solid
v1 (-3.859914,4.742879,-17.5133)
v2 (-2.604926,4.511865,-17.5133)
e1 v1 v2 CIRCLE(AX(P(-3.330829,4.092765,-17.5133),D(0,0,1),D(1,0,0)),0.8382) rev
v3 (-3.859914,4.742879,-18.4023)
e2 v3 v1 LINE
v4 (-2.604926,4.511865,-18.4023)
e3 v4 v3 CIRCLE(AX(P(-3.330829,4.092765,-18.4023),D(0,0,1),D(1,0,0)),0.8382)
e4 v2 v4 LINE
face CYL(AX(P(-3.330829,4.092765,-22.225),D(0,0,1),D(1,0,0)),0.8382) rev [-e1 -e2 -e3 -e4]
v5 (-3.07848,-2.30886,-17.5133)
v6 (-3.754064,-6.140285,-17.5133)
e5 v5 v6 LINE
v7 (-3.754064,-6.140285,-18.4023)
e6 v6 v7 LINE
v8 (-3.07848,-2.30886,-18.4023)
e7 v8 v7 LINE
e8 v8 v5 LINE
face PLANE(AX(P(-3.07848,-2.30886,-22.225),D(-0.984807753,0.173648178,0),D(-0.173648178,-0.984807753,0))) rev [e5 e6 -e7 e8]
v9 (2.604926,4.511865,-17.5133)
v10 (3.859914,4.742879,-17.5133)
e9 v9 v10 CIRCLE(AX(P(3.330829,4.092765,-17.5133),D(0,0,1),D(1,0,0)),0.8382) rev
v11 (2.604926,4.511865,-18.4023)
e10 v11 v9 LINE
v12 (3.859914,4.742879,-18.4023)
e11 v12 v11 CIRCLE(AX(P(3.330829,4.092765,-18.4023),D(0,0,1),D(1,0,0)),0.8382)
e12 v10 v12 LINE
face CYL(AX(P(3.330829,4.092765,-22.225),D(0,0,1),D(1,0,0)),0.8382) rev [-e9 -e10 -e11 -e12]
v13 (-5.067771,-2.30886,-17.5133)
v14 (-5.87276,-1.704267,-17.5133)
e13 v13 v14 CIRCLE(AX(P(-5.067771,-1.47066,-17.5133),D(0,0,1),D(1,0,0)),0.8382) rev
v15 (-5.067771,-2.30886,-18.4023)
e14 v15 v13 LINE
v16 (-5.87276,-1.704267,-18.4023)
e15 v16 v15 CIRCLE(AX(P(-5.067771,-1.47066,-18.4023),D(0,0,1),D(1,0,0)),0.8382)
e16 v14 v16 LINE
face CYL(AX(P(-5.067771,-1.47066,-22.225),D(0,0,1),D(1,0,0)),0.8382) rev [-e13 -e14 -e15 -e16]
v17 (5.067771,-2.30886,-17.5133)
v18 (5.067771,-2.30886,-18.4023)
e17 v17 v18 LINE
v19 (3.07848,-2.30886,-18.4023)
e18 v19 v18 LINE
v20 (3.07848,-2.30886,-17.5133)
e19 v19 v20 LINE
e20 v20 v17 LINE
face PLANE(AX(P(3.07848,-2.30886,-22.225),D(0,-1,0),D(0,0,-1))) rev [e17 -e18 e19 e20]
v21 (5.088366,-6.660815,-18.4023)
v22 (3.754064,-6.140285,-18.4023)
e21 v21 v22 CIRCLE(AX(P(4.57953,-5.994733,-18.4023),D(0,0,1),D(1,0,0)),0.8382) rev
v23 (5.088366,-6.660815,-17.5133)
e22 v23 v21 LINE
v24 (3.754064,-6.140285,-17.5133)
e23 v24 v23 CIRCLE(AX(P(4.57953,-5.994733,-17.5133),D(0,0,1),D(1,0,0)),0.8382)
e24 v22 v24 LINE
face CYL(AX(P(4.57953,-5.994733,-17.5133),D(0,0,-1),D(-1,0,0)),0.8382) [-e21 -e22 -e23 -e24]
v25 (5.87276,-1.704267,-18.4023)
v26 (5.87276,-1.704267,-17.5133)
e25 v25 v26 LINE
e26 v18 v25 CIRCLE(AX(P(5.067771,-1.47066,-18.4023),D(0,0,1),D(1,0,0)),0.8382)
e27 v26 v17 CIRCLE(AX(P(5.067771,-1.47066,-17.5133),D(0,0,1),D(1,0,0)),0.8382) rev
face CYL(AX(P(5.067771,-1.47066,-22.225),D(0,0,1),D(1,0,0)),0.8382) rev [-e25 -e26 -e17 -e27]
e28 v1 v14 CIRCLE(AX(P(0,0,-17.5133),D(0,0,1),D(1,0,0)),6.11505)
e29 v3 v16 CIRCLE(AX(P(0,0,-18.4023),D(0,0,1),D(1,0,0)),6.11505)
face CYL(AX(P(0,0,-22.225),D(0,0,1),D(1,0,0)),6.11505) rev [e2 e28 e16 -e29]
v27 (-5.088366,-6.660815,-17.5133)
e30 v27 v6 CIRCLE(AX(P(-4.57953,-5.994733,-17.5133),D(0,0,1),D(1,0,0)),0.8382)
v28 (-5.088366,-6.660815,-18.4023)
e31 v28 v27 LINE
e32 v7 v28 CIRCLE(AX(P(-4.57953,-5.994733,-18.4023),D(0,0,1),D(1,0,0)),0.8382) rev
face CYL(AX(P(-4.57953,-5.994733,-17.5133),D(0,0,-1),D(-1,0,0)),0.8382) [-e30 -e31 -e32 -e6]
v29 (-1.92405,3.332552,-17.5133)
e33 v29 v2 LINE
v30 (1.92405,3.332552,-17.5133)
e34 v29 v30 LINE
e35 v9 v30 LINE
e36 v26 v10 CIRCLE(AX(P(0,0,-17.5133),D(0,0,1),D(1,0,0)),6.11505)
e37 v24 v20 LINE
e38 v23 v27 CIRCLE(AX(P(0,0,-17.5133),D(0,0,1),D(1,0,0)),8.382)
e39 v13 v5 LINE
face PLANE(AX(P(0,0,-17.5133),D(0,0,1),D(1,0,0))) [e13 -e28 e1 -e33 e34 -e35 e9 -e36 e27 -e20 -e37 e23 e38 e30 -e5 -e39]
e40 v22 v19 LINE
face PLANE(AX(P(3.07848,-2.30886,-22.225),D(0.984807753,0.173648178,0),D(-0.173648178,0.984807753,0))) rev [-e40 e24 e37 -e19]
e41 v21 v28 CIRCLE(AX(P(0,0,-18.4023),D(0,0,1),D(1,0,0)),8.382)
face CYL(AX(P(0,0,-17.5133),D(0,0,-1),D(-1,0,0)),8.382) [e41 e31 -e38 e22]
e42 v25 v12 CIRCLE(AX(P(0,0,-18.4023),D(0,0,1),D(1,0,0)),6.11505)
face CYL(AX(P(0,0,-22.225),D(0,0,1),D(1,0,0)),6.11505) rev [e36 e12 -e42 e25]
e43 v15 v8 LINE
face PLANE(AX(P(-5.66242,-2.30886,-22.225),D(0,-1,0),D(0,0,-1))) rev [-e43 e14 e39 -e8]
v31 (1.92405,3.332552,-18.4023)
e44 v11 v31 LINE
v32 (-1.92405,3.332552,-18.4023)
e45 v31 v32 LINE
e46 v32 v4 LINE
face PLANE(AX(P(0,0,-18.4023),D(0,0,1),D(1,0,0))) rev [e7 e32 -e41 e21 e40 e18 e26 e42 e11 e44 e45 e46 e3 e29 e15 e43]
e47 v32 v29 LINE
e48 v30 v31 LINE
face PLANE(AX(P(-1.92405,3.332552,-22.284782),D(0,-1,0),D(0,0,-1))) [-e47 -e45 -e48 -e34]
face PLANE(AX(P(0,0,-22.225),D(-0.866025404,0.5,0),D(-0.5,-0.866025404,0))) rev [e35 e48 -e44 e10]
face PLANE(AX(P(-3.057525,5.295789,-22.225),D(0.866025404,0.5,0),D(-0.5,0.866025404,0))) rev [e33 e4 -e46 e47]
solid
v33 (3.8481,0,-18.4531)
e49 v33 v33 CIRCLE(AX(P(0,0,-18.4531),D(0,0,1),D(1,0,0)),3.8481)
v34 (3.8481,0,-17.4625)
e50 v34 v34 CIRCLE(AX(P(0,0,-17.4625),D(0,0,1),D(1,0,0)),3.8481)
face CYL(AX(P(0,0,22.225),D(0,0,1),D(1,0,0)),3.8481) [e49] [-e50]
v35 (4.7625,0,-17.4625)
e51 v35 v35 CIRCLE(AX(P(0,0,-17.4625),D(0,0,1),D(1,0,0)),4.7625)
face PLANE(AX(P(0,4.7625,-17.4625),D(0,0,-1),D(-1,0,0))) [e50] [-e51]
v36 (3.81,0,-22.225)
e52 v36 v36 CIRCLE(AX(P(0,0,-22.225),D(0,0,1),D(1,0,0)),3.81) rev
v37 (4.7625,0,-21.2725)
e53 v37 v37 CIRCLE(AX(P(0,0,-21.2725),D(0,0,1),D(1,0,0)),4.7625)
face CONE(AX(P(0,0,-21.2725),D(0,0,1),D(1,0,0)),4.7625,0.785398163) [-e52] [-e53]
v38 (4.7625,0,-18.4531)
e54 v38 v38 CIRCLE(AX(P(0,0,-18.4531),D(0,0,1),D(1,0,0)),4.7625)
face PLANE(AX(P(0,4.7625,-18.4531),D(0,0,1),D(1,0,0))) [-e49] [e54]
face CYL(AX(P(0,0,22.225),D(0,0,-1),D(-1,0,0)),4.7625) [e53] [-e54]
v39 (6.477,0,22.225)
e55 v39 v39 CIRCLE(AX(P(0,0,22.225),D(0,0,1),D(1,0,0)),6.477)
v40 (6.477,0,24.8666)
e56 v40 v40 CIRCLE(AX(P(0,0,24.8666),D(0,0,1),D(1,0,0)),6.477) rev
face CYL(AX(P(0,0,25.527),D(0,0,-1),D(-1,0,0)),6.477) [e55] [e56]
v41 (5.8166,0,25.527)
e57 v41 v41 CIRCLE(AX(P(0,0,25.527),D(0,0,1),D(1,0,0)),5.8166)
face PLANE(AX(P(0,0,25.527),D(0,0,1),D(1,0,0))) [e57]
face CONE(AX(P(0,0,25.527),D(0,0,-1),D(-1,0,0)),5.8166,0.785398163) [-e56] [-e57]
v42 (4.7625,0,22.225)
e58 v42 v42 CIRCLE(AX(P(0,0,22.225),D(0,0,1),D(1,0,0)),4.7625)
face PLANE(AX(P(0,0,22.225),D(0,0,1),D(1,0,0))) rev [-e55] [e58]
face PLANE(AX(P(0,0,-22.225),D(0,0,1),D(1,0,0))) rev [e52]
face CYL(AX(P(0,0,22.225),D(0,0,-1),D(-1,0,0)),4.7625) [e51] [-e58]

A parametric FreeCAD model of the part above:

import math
import FreeCAD as App
import Part
import Sketcher

V = App.Vector
Q = App.Units.Quantity


def edges_at(feature, points):
    """Names of the edges that pass closest to the given points."""
    edges = feature.Shape.Edges
    near = lambda p: min(range(len(edges)), key=lambda i: edges[i].distToShape(Part.Vertex(*p))[0])
    return sorted({f"Edge{near(p) + 1}" for p in points})


def add_polygon(sketch, points):
    """Adds a closed chain of lines whose ends are joined by coincident constraints."""
    first, n = sketch.GeometryCount, len(points)
    for a, b in zip(points, points[1:] + points[:1]):
        sketch.addGeometry(Part.LineSegment(App.Vector(*a, 0), App.Vector(*b, 0)), False)
    for i in range(n):
        sketch.addConstraint(Sketcher.Constraint("Coincident", first + i, 2, first + (i + 1) % n, 1))

doc = App.newDocument("Part")
body = doc.addObject("PartDesign::Body", "Body")

sketch1 = body.newObject("Sketcher::SketchObject", "Sketch")
sketch1.AttachmentSupport = (doc.getObject("XY_Plane"), [""])
sketch1.MapMode = "FlatFace"
sketch1.addGeometry(Part.Circle(V(0, 0, 0), V(0, 0, 1), 4.7625), False)
sketch1.addConstraint([
    Sketcher.Constraint("Coincident", 0, 3, -1, 1),
    Sketcher.Constraint("Diameter", 0, Q("0.375 in")),
])
pad1 = body.newObject("PartDesign::Pad", "Pad")
pad1.Profile = sketch1
pad1.Length = Q("1.75 in")
pad1.Midplane = True

sketch2 = body.newObject("Sketcher::SketchObject", "Sketch001")
sketch2.AttachmentSupport = (doc.getObject("YZ_Plane"), [""])
sketch2.MapMode = "FlatFace"
add_polygon(sketch2, [(4.7625, -17.4625), (3.8481, -17.4625), (3.8481, -18.4531), (4.7625, -18.4531)])
sketch2.addConstraint([
    Sketcher.Constraint("Horizontal", 0),
    Sketcher.Constraint("Vertical", 1),
    Sketcher.Constraint("Horizontal", 2),
    Sketcher.Constraint("Vertical", 3),
    Sketcher.Constraint("DistanceX", 0, 2, 0, 1, Q("0.036 in")),
    Sketcher.Constraint("DistanceY", 1, 2, 1, 1, Q("0.039 in")),
    Sketcher.Constraint("DistanceY", 0, 2, -1, 1, Q("0.6875 in")),
    Sketcher.Constraint("DistanceX", -1, 1, 2, 2, Q("0.1875 in")),
])
groove = body.newObject("PartDesign::Groove", "Groove")
groove.Profile = sketch2
groove.ReferenceAxis = (sketch2, ["V_Axis"])
groove.Angle = 360

sketch3 = body.newObject("Sketcher::SketchObject", "Sketch002")
sketch3.AttachmentSupport = (doc.getObject("XY_Plane"), [""])
sketch3.MapMode = "FlatFace"
sketch3.AttachmentOffset = App.Placement(V(0, 0, 0.875 * 25.4), App.Rotation())
sketch3.addGeometry(Part.Circle(V(0, 0, 0), V(0, 0, 1), 6.477), False)
sketch3.addConstraint([
    Sketcher.Constraint("Coincident", 0, 3, -1, 1),
    Sketcher.Constraint("Diameter", 0, Q("0.51 in")),
])
pad2 = body.newObject("PartDesign::Pad", "Pad001")
pad2.Profile = sketch3
pad2.Length = Q("0.13 in")
doc.recompute()

chamfer = body.newObject("PartDesign::Chamfer", "Chamfer")
chamfer.Base = (pad2, edges_at(pad2, [(-6.477, 0, 25.527)]))
chamfer.Size = Q("0.026 in")
doc.recompute()

chamfer2 = body.newObject("PartDesign::Chamfer", "Chamfer001")
chamfer2.Base = (chamfer, edges_at(chamfer, [(-4.763, 0, -22.225)]))
chamfer2.Size = Q("0.0375 in")
body2 = doc.addObject("PartDesign::Body", "Body001")

sketch4 = body2.newObject("Sketcher::SketchObject", "Sketch003")
sketch4.AttachmentSupport = (doc.getObject("XY_Plane001"), [""])
sketch4.MapMode = "FlatFace"
sketch4.AttachmentOffset = App.Placement(V(0, 0, -0.707 * 25.4), App.Rotation())
sketch4.addGeometry([
    Part.Circle(V(0, 0, 0), V(0, 0, 1), 8.382),
    Part.Circle(V(0, 0, 0), V(0, 0, 1), 3.8481),
], False)
sketch4.addConstraint([
    Sketcher.Constraint("Coincident", 0, 3, -1, 1),
    Sketcher.Constraint("Coincident", 1, 3, -1, 1),
    Sketcher.Constraint("Diameter", 0, Q("0.66 in")),
    Sketcher.Constraint("Diameter", 1, Q("0.303 in")),
])
pad3 = body2.newObject("PartDesign::Pad", "Pad002")
pad3.Profile = sketch4
pad3.Length = Q("0.035 in")
pad3.Midplane = True

sketch5 = body2.newObject("Sketcher::SketchObject", "Sketch004")
sketch5.AttachmentSupport = (doc.getObject("XY_Plane001"), [""])
sketch5.MapMode = "FlatFace"
sketch5.addGeometry([
    Part.LineSegment(V(0, 0, 0), V(-3.057525, 5.295789, 0)),
    Part.ArcOfCircle(Part.Circle(V(0, 0, 0), V(0, 0, 1), 6.11505), math.radians(120), math.radians(202.18325)),
    Part.LineSegment(V(-5.66242, -2.30886, 0), V(-3.07848, -2.30886, 0)),
    Part.LineSegment(V(-3.07848, -2.30886, 0), V(-3.972784, -7.380712, 0)),
    Part.ArcOfCircle(Part.Circle(V(0, 0, 0), V(0, 0, 1), 8.382), math.radians(-118.292058), math.radians(-61.707942)),
    Part.LineSegment(V(3.972784, -7.380712, 0), V(3.07848, -2.30886, 0)),
    Part.LineSegment(V(3.07848, -2.30886, 0), V(5.66242, -2.30886, 0)),
    Part.ArcOfCircle(Part.Circle(V(0, 0, 0), V(0, 0, 1), 6.11505), math.radians(-22.18325), math.radians(60)),
    Part.LineSegment(V(3.057525, 5.295789, 0), V(0, 0, 0)),
], False)
sketch5.addConstraint([
    Sketcher.Constraint("Coincident", 0, 2, 1, 1),
    Sketcher.Constraint("Coincident", 1, 2, 2, 1),
    Sketcher.Constraint("Coincident", 2, 2, 3, 1),
    Sketcher.Constraint("Coincident", 3, 2, 4, 1),
    Sketcher.Constraint("Coincident", 4, 2, 5, 1),
    Sketcher.Constraint("Coincident", 5, 2, 6, 1),
    Sketcher.Constraint("Coincident", 6, 2, 7, 1),
    Sketcher.Constraint("Coincident", 7, 2, 8, 1),
    Sketcher.Constraint("Coincident", 8, 2, 0, 1),
    Sketcher.Constraint("Horizontal", 2),
    Sketcher.Constraint("Horizontal", 6),
    Sketcher.Constraint("Coincident", 1, 3, -1, 1),
    Sketcher.Constraint("Coincident", 4, 3, -1, 1),
    Sketcher.Constraint("Coincident", 7, 3, -1, 1),
    Sketcher.Constraint("Coincident", 8, 2, -1, 1),
    Sketcher.Constraint("Equal", 1, 7),
    Sketcher.Constraint("Symmetric", 2, 2, 5, 2, -2),
    Sketcher.Constraint("Horizontal", 3, 2, 4, 2),
    Sketcher.Constraint("Horizontal", 0, 2, 7, 2),
    Sketcher.Constraint("Radius", 4, Q("0.33 in")),
    Sketcher.Constraint("Angle", 0, Q("120 deg")),
    Sketcher.Constraint("Angle", 3, Q("-100 deg")),
    Sketcher.Constraint("Radius", 1, Q("6.11505 mm")),
    Sketcher.Constraint("DistanceY", 1, 2, -1, 1, Q("0.0909 in")),
    Sketcher.Constraint("DistanceX", 2, 2, -1, 1, Q("0.1212 in")),
])
pocket1 = body2.newObject("PartDesign::Pocket", "Pocket")
pocket1.Profile = sketch5
pocket1.Type = "ThroughAll"

sketch6 = body2.newObject("Sketcher::SketchObject", "Sketch005")
sketch6.AttachmentSupport = (doc.getObject("XY_Plane001"), [""])
sketch6.MapMode = "FlatFace"
sketch6.AttachmentOffset = App.Placement(V(0, 0, -0.6895 * 25.4), App.Rotation())
sketch6.addGeometry([
    Part.LineSegment(V(-1.92405, 3.332552, 0), V(1.92405, 3.332552, 0)),
    Part.ArcOfCircle(Part.Circle(V(0, 0, 0), V(0, 0, 1), 3.8481), math.radians(60), math.radians(120)),
], False)
sketch6.addConstraint([
    Sketcher.Constraint("Coincident", 0, 1, 1, 2),
    Sketcher.Constraint("Coincident", 1, 1, 0, 2),
    Sketcher.Constraint("Horizontal", 0),
    Sketcher.Constraint("Coincident", 1, 3, -1, 1),
    Sketcher.Constraint("Radius", 1, Q("0.1515 in")),
    Sketcher.Constraint("DistanceX", 0, 1, 0, 2, Q("0.1515 in")),
])
pad4 = body2.newObject("PartDesign::Pad", "Pad003")
pad4.Profile = sketch6
pad4.Length = Q("0.035 in")
pad4.Reversed = True
doc.recompute()

fillet = body2.newObject("PartDesign::Fillet", "Fillet")
fillet.Base = (pad4, edges_at(pad4, [
    (3.058, 5.296, -17.958),
    (3.973, -7.381, -17.958),
    (-5.662, -2.309, -17.958),
    (5.662, -2.309, -17.958),
    (-3.973, -7.381, -17.958),
    (-3.058, 5.296, -17.958),
]))
fillet.Radius = Q("0.033 in")

doc.recompute()
